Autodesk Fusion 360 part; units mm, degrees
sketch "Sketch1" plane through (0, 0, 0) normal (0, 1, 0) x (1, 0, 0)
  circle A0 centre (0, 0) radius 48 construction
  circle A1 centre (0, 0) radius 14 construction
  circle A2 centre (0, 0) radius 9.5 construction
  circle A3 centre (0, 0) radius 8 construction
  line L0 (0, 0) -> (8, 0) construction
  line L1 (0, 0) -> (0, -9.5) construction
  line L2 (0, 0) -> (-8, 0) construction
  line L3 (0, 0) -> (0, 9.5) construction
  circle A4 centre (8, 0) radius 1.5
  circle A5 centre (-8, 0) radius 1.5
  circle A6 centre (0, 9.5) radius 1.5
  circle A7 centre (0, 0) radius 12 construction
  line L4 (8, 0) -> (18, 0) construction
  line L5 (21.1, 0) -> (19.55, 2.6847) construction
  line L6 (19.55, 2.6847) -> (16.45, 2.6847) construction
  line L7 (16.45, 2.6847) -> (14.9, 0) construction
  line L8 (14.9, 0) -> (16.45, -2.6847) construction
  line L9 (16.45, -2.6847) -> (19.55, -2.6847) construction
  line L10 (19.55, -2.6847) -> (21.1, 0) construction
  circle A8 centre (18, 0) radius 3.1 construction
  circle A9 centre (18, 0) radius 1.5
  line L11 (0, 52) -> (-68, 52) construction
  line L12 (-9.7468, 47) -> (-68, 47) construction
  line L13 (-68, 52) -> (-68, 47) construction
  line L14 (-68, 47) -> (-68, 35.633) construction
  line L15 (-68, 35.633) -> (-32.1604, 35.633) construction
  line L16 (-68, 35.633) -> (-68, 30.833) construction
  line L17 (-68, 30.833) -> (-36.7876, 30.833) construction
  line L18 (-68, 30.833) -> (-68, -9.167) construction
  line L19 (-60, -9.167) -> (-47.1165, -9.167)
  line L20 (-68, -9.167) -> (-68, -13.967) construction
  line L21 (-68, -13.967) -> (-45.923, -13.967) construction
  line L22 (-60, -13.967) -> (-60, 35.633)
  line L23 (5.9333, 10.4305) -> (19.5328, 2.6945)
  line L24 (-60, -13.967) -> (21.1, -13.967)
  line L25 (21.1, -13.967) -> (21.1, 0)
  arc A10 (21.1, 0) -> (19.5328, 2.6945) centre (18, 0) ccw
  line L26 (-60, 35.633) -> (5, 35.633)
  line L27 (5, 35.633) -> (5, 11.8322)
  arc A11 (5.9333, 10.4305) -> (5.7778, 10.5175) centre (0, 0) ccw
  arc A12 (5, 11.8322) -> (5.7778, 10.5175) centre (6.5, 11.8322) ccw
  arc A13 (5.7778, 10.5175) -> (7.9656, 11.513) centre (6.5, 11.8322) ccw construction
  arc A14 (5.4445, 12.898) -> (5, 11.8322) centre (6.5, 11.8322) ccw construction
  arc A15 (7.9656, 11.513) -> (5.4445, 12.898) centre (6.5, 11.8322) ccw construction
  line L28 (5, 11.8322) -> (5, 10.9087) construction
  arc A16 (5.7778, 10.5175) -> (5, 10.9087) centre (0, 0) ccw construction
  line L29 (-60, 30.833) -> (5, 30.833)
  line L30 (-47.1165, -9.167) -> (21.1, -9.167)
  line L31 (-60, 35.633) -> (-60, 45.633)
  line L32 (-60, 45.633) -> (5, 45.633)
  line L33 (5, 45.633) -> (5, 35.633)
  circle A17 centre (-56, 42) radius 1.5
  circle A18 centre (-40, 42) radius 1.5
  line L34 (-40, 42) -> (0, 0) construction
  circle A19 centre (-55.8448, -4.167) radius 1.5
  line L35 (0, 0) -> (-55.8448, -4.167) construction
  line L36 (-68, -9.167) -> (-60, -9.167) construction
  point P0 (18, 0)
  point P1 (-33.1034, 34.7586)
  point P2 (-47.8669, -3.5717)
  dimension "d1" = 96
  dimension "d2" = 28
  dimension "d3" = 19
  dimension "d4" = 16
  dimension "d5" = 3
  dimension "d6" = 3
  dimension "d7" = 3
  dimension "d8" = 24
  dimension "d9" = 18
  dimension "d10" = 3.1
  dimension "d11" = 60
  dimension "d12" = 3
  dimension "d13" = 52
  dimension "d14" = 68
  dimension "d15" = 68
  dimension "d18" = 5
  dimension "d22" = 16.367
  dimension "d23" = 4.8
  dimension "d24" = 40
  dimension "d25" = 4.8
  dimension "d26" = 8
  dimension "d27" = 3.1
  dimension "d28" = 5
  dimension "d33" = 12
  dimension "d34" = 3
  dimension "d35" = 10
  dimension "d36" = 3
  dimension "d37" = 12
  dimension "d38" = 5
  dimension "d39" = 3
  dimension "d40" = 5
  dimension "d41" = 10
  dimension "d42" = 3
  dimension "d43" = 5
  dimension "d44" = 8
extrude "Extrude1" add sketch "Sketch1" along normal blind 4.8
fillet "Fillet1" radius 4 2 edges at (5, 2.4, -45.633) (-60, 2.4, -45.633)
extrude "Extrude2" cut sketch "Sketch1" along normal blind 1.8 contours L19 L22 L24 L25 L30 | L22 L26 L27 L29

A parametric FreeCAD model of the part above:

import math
import FreeCAD as App
import Part
import Sketcher

V = App.Vector
Q = App.Units.Quantity


def edges_at(feature, points):
    """Names of the edges that pass closest to the given points."""
    edges = feature.Shape.Edges
    near = lambda p: min(range(len(edges)), key=lambda i: edges[i].distToShape(Part.Vertex(*p))[0])
    return sorted({f"Edge{near(p) + 1}" for p in points})

doc = App.newDocument("Part")
params = doc.addObject("Spreadsheet::Sheet", "Params")
for row, (alias, value) in enumerate([
    ("sketch1_diameter", "3 mm"),
    ("sketch1_diameter2", "3 mm"),
    ("sketch1_diameter3", "3 mm"),
    ("sketch1_diameter4", "3 mm"),
    ("sketch1_diameter5", "3 mm"),
    ("pad1_length", "4.8 mm"),
    ("fillet_radius", "4 mm"),
    ("sketch2_height", "4.8 mm"),
    ("sketch2_width", "81.1 mm"),
    ("pocket1_length", "1.8 mm"),
], start=1):
    params.set(f"A{row}", alias)
    params.set(f"B{row}", "=" + value)
    params.setAlias(f"B{row}", alias)

body = doc.addObject("PartDesign::Body", "Body")

sketch1 = body.newObject("Sketcher::SketchObject", "Sketch")
sketch1.AttachmentSupport = (doc.getObject("XZ_Plane"), [""])
sketch1.MapMode = "FlatFace"
sketch1.addGeometry([
    Part.LineSegment(V(-60, 13.967, 0), V(21.1, 13.967, 0)),
    Part.LineSegment(V(21.1, 13.967, 0), V(21.1, 0, 0)),
    Part.ArcOfCircle(Part.Circle(V(18, 0, 0), V(0, 0, 1), 3.1), math.radians(-60.366076), math.radians(0)),
    Part.LineSegment(V(19.5328, -2.6945, 0), V(5.9333, -10.4305, 0)),
    Part.ArcOfCircle(Part.Circle(V(-0.570099, 1.010924, 0), V(0, 0, 1), 13.160561), math.radians(-61.16149), math.radians(-60.385747)),
    Part.ArcOfCircle(Part.Circle(V(6.5, -11.8322, 0), V(0, 0, 1), 1.500003), math.radians(118.781174), math.radians(180)),
    Part.LineSegment(V(5, -11.8322, 0), V(5, -45.633, 0)),
    Part.LineSegment(V(5, -45.633, 0), V(-60, -45.633, 0)),
    Part.LineSegment(V(-60, -45.633, 0), V(-60, 13.967, 0)),
    Part.Circle(V(-55.8448, 4.167, 0), V(0, 0, 1), 1.5),
    Part.Circle(V(-8, 0, 0), V(0, 0, 1), 1.5),
    Part.Circle(V(8, 0, 0), V(0, 0, 1), 1.5),
    Part.Circle(V(18, 0, 0), V(0, 0, 1), 1.5),
    Part.Circle(V(0, -9.5, 0), V(0, 0, 1), 1.5),
    Part.Circle(V(-40, -42, 0), V(0, 0, 1), 1.5),
    Part.Circle(V(-56, -42, 0), V(0, 0, 1), 1.5),
], False)
sketch1.addConstraint([
    Sketcher.Constraint("Coincident", 0, 2, 1, 1),
    Sketcher.Constraint("Coincident", 1, 2, 2, 2),
    Sketcher.Constraint("Coincident", 2, 1, 3, 1),
    Sketcher.Constraint("Coincident", 3, 2, 4, 2),
    Sketcher.Constraint("Coincident", 4, 1, 5, 1),
    Sketcher.Constraint("Coincident", 5, 2, 6, 1),
    Sketcher.Constraint("Coincident", 6, 2, 7, 1),
    Sketcher.Constraint("Coincident", 7, 2, 8, 1),
    Sketcher.Constraint("Coincident", 8, 2, 0, 1),
    Sketcher.Constraint("Horizontal", 0),
    Sketcher.Constraint("Vertical", 1),
    Sketcher.Constraint("Vertical", 6),
    Sketcher.Constraint("Horizontal", 7),
    Sketcher.Constraint("Vertical", 8),
    Sketcher.Constraint("Coincident", 12, 3, 2, 3),
    Sketcher.Constraint("PointOnObject", 2, 3, -1),
    Sketcher.Constraint("PointOnObject", 10, 3, -1),
    Sketcher.Constraint("PointOnObject", 11, 3, -1),
    Sketcher.Constraint("PointOnObject", 13, 3, -2),
    Sketcher.Constraint("PointOnObject", 1, 2, -1),
    Sketcher.Constraint("Diameter", 9, Q("3 mm")),
    Sketcher.Constraint("Diameter", 10, Q("3 mm")),
    Sketcher.Constraint("Diameter", 11, Q("3 mm")),
    Sketcher.Constraint("Diameter", 12, Q("3 mm")),
    Sketcher.Constraint("Diameter", 13, Q("3 mm")),
    Sketcher.Constraint("Diameter", 14, Q("3 mm")),
    Sketcher.Constraint("Diameter", 15, Q("3 mm")),
    Sketcher.Constraint("Radius", 2, Q("3.1 mm")),
    Sketcher.Constraint("Radius", 5, Q("1.5 mm")),
    Sketcher.Constraint("DistanceX", -1, 1, 2, 3, Q("18 mm")),
    Sketcher.Constraint("DistanceX", 10, 3, -1, 1, Q("8 mm")),
    Sketcher.Constraint("DistanceX", -1, 1, 11, 3, Q("8 mm")),
    Sketcher.Constraint("DistanceX", 14, 3, -1, 1, Q("40 mm")),
    Sketcher.Constraint("DistanceX", -1, 1, 5, 2, Q("5 mm")),
    Sketcher.Constraint("DistanceX", 7, 2, -1, 1, Q("60 mm")),
    Sketcher.Constraint("DistanceX", 15, 3, 14, 3, Q("16 mm")),
    Sketcher.Constraint("DistanceY", 8, 1, 8, 2, Q("59.6 mm")),
    Sketcher.Constraint("DistanceY", 14, 3, -1, 1, Q("42 mm")),
    Sketcher.Constraint("DistanceY", 15, 3, -1, 1, Q("42 mm")),
    Sketcher.Constraint("DistanceY", 13, 3, -1, 1, Q("9.5 mm")),
    Sketcher.Constraint("Radius", 4, Q("13.1606 mm")),
    Sketcher.Constraint("DistanceY", 7, 2, 9, 3, Q("49.8 mm")),
    Sketcher.Constraint("DistanceY", 1, 2, 1, 1, Q("13.967 mm")),
    Sketcher.Constraint("DistanceX", 4, 3, -1, 1, Q("0.57 mm")),
    Sketcher.Constraint("DistanceY", 6, 2, 6, 1, Q("33.8008 mm")),
    Sketcher.Constraint("DistanceY", -1, 1, 4, 3, Q("1.011 mm")),
    Sketcher.Constraint("DistanceY", 3, 2, 2, 1, Q("7.736 mm")),
    Sketcher.Constraint("DistanceY", 4, 1, 3, 2, Q("0.087 mm")),
    Sketcher.Constraint("DistanceX", 4, 3, 4, 1, Q("6.348 mm")),
    Sketcher.Constraint("DistanceX", 9, 3, -1, 1, Q("55.8448 mm")),
])
sketch1.setExpression("Constraints[20]", "Params.sketch1_diameter")
sketch1.setExpression("Constraints[21]", "Params.sketch1_diameter2")
sketch1.setExpression("Constraints[22]", "Params.sketch1_diameter3")
sketch1.setExpression("Constraints[23]", "Params.sketch1_diameter4")
sketch1.setExpression("Constraints[24]", "Params.sketch1_diameter5")
pad1 = body.newObject("PartDesign::Pad", "Pad")
pad1.Profile = sketch1
pad1.setExpression("Length", "Params.pad1_length")
pad1.Reversed = True
doc.recompute()

fillet = body.newObject("PartDesign::Fillet", "Fillet")
fillet.Base = (pad1, edges_at(pad1, [(5, 2.4, -45.633), (-60, 2.4, -45.633)]))
fillet.setExpression("Radius", "Params.fillet_radius")

sketch2 = body.newObject("Sketcher::SketchObject", "Sketch001")
sketch2.AttachmentSupport = (doc.getObject("XZ_Plane"), [""])
sketch2.MapMode = "FlatFace"
sketch2.addGeometry([
    Part.LineSegment(V(21.1, 9.2, 0), V(-60, 9.2, 0)),
    Part.LineSegment(V(-60, 9.2, 0), V(-60, 14, 0)),
    Part.LineSegment(V(-60, 14, 0), V(21.1, 14, 0)),
    Part.LineSegment(V(21.1, 14, 0), V(21.1, 9.2, 0)),
    Part.LineSegment(V(-60, -35.6, 0), V(-60, -30.8, 0)),
    Part.LineSegment(V(-60, -30.8, 0), V(5, -30.8, 0)),
    Part.LineSegment(V(5, -30.8, 0), V(5, -35.6, 0)),
    Part.LineSegment(V(5, -35.6, 0), V(-60, -35.6, 0)),
], False)
sketch2.addConstraint([
    Sketcher.Constraint("Coincident", 0, 2, 1, 1),
    Sketcher.Constraint("Coincident", 1, 2, 2, 1),
    Sketcher.Constraint("Coincident", 2, 2, 3, 1),
    Sketcher.Constraint("Coincident", 3, 2, 0, 1),
    Sketcher.Constraint("Coincident", 4, 2, 5, 1),
    Sketcher.Constraint("Coincident", 5, 2, 6, 1),
    Sketcher.Constraint("Coincident", 6, 2, 7, 1),
    Sketcher.Constraint("Coincident", 7, 2, 4, 1),
    Sketcher.Constraint("Horizontal", 0),
    Sketcher.Constraint("Vertical", 1),
    Sketcher.Constraint("Horizontal", 2),
    Sketcher.Constraint("Vertical", 3),
    Sketcher.Constraint("Vertical", 4),
    Sketcher.Constraint("Horizontal", 5),
    Sketcher.Constraint("Vertical", 6),
    Sketcher.Constraint("Horizontal", 7),
    Sketcher.Constraint("Vertical", 1, 2, 4, 2),
    Sketcher.Constraint("Equal", 3, 4),
    Sketcher.Constraint("DistanceY", 1, 1, 1, 2, Q("4.8 mm")),
    Sketcher.Constraint("DistanceX", 0, 2, -1, 1, Q("60 mm")),
    Sketcher.Constraint("DistanceX", -1, 1, 5, 2, Q("5 mm")),
    Sketcher.Constraint("DistanceY", 4, 2, 0, 2, Q("40 mm")),
    Sketcher.Constraint("DistanceX", 0, 2, 0, 1, Q("81.1 mm")),
    Sketcher.Constraint("DistanceY", -1, 1, 0, 2, Q("9.167 mm")),
])
sketch2.setExpression("Constraints[18]", "Params.sketch2_height")
sketch2.setExpression("Constraints[22]", "Params.sketch2_width")
pocket1 = body.newObject("PartDesign::Pocket", "Pocket")
pocket1.Profile = sketch2
pocket1.setExpression("Length", "Params.pocket1_length")

doc.recompute()
